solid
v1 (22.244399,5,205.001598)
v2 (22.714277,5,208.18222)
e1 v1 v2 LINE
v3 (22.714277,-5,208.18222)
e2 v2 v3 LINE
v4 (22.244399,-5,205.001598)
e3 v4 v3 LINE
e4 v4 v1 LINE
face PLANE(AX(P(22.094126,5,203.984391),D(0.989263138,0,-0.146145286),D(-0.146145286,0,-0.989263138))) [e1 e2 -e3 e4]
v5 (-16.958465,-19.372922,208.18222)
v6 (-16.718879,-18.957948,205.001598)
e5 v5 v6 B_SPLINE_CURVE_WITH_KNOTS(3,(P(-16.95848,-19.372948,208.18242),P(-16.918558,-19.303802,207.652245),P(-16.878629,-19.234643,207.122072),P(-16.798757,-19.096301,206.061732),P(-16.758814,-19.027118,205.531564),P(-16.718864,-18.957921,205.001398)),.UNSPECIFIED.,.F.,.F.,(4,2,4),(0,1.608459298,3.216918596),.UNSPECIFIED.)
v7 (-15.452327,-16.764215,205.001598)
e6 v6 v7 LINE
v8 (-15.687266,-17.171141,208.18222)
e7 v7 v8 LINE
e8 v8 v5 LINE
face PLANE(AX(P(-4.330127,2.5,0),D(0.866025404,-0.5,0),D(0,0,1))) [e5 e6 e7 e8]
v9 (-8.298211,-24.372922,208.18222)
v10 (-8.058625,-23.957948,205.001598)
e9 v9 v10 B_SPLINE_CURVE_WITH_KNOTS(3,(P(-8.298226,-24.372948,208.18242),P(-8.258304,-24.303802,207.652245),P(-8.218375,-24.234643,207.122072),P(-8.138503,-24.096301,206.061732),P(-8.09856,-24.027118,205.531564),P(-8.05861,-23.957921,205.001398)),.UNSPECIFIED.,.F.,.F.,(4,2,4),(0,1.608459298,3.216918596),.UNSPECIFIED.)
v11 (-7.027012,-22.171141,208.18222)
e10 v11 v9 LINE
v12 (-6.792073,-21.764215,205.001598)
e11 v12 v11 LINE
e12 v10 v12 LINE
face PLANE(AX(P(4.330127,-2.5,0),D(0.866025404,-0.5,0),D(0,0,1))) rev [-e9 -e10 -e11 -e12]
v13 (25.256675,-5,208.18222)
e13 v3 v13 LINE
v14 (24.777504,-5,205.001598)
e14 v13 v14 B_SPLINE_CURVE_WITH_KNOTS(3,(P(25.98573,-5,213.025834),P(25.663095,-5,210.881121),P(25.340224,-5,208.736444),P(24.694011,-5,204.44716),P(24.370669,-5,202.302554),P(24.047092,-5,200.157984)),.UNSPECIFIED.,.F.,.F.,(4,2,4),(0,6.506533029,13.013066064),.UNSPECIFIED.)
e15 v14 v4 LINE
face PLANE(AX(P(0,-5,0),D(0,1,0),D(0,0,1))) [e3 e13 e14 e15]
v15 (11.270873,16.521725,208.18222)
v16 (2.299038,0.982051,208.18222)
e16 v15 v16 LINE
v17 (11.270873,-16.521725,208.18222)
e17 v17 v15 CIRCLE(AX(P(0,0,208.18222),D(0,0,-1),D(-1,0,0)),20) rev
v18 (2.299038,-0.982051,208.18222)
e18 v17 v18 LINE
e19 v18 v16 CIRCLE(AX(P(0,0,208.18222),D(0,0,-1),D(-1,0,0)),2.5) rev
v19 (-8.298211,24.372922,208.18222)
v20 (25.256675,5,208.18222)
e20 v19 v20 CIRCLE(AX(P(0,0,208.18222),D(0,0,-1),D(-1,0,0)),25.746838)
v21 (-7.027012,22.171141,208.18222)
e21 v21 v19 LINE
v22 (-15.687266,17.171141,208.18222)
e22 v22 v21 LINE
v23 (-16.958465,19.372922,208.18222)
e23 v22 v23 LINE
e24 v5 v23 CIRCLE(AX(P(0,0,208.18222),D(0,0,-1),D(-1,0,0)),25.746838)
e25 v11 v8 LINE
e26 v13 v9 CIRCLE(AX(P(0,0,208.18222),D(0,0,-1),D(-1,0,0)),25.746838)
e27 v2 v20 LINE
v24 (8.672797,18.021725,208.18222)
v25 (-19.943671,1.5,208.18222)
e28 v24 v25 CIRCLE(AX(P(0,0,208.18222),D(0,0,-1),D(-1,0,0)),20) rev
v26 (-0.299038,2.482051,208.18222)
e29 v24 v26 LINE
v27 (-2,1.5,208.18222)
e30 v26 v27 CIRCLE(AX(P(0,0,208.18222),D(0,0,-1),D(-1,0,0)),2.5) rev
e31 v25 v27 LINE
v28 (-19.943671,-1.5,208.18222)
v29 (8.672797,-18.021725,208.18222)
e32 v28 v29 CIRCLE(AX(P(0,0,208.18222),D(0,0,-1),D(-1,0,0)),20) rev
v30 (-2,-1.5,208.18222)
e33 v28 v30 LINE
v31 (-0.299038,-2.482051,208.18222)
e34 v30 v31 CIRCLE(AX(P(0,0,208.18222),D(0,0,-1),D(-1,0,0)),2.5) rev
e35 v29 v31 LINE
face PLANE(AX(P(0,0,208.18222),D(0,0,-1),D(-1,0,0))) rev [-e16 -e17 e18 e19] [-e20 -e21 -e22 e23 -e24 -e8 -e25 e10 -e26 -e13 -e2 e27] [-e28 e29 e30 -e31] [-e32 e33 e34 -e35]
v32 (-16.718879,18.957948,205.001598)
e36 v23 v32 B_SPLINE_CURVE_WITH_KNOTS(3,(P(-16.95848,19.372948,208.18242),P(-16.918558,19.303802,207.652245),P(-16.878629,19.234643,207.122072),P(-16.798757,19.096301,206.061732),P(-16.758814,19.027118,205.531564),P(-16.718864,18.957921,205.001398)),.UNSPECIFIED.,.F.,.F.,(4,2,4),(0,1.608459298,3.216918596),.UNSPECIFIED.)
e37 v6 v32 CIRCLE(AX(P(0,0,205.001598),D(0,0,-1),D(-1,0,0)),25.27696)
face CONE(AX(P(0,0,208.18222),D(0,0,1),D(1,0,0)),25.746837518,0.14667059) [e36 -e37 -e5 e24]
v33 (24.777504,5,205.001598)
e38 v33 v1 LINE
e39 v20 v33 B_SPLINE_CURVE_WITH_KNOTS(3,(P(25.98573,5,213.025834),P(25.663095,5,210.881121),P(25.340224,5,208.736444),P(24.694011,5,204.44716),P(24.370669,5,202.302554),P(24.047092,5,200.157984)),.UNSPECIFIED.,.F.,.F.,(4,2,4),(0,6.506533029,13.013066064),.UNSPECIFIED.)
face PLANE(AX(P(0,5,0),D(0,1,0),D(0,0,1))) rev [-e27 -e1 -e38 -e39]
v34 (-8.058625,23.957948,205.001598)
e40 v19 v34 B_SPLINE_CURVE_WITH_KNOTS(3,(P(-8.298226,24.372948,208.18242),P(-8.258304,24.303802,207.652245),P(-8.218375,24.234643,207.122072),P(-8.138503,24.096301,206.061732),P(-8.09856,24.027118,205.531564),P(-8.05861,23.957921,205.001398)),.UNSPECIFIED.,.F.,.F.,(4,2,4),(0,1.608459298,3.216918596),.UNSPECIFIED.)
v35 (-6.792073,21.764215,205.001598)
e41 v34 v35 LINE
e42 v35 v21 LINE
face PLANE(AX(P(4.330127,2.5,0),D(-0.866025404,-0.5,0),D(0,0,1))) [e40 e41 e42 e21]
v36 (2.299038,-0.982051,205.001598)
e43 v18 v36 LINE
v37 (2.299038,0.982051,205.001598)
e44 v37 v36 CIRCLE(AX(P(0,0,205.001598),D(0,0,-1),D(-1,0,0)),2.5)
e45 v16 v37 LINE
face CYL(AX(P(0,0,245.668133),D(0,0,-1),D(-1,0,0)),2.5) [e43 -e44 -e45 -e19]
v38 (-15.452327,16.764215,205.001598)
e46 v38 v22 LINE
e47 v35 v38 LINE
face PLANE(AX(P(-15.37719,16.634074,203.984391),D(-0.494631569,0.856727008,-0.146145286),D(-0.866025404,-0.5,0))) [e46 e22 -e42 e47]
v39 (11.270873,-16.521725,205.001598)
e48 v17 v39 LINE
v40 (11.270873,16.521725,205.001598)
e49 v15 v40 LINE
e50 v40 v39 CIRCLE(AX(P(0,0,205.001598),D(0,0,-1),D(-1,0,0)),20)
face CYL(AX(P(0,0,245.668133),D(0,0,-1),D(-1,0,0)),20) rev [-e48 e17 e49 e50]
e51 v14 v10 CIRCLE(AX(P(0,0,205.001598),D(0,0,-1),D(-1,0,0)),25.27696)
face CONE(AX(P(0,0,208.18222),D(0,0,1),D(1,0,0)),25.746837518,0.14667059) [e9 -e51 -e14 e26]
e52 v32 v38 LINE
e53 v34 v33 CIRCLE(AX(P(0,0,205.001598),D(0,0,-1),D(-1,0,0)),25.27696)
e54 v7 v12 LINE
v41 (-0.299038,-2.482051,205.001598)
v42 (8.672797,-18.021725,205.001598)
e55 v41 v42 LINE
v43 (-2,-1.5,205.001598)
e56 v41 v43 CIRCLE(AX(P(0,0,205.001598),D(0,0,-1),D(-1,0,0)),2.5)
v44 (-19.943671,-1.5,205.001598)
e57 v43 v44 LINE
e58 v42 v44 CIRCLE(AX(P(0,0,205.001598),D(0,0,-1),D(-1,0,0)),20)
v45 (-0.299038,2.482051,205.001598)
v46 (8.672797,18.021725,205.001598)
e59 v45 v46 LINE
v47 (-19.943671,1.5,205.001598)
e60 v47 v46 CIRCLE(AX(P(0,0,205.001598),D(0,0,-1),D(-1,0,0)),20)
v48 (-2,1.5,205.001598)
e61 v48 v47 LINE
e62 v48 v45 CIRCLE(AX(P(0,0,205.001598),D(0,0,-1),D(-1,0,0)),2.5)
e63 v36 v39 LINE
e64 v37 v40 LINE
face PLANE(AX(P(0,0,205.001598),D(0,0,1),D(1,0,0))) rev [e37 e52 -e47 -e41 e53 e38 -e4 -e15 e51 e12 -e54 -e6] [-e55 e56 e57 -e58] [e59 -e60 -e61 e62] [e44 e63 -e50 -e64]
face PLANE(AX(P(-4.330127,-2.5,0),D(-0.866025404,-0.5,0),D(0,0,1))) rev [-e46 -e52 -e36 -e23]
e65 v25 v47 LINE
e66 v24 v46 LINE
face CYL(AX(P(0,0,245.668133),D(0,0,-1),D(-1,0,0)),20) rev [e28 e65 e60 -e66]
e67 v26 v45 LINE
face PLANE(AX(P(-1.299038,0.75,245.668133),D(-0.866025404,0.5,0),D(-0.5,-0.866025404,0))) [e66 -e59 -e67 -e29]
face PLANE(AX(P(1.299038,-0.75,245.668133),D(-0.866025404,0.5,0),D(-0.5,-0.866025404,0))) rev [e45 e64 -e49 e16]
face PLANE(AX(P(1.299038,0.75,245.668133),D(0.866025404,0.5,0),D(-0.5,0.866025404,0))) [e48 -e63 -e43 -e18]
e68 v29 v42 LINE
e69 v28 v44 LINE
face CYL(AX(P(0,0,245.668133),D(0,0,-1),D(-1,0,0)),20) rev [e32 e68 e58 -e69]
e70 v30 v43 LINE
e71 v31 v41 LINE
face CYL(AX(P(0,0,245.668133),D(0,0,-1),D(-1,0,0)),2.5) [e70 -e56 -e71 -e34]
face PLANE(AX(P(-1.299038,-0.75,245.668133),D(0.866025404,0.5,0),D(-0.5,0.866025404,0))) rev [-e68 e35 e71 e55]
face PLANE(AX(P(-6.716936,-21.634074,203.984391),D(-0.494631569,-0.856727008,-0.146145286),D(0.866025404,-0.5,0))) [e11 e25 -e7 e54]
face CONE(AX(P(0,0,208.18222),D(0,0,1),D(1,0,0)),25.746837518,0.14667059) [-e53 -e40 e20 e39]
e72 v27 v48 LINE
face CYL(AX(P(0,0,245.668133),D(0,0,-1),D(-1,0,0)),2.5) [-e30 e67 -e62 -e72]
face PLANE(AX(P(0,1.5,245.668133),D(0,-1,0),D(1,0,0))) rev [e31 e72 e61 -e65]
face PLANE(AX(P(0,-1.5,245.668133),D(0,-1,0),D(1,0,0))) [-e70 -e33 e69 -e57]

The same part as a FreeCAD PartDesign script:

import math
import FreeCAD as App
import Part
import Sketcher
Q = App.Units.Quantity


def add_polygon(sketch, points):
    """Adds a closed chain of lines whose ends are joined by coincident constraints."""
    first, n = sketch.GeometryCount, len(points)
    for a, b in zip(points, points[1:] + points[:1]):
        sketch.addGeometry(Part.LineSegment(App.Vector(*a, 0), App.Vector(*b, 0)), False)
    for i in range(n):
        sketch.addConstraint(Sketcher.Constraint("Coincident", first + i, 2, first + (i + 1) % n, 1))

doc = App.newDocument("Part")
body = doc.addObject("PartDesign::Body", "Body")

sketch1 = doc.addObject("Sketcher::SketchObject", "Sketch")
body.addObject(sketch1)
sketch1.AttachmentSupport = (doc.XZ_Plane, [""])
sketch1.MapMode = "FlatFace"
add_polygon(sketch1, [(0, 208.2), (25.7, 208.2), (25.3, 205), (0, 205)])
sketch1.addConstraint([
    Sketcher.Constraint("Horizontal", 0),
    Sketcher.Constraint("Horizontal", 2),
    Sketcher.Constraint("Vertical", 3),
    Sketcher.Constraint("PointOnObject", 2, 2, -2),
    Sketcher.Constraint("DistanceX", 2, 2, 2, 1, 25.27696),
    Sketcher.Constraint("DistanceX", 0, 1, 0, 2, 25.746838),
    Sketcher.Constraint("DistanceY", 3, 1, 3, 2, 3.180622),
    Sketcher.Constraint("DistanceY", -1, 1, 0, 2, 208.18222),
])
revolution = doc.addObject("PartDesign::Revolution", "Revolution")
body.addObject(revolution)
revolution.Profile = sketch1
revolution.ReferenceAxis = (sketch1, ["V_Axis"])
revolution.Angle = 360

sketch2 = doc.addObject("Sketcher::SketchObject", "Sketch001")
body.addObject(sketch2)
sketch2.AttachmentSupport = (doc.XZ_Plane, [""])
sketch2.MapMode = "FlatFace"
add_polygon(sketch2, [(22.1, 204), (22.9, 209.1), (26.7, 209.1), (25.7, 204)])
sketch2.addConstraint([
    Sketcher.Constraint("Horizontal", 1),
    Sketcher.Constraint("Horizontal", 3),
    Sketcher.Constraint("DistanceX", 1, 1, 1, 2, 3.88705),
    Sketcher.Constraint("DistanceX", 3, 2, 3, 1, 3.652712),
    Sketcher.Constraint("DistanceY", 2, 2, 1, 2, 5.1204),
    Sketcher.Constraint("DistanceX", -1, 1, 0, 2, 22.85057),
    Sketcher.Constraint("DistanceY", -1, 1, 0, 2, 209.104791),
    Sketcher.Constraint("Distance", 0, 5.175974),
])
pocket1 = doc.addObject("PartDesign::Pocket", "Pocket")
body.addObject(pocket1)
pocket1.Profile = sketch2
pocket1.Length = 10
pocket1.Midplane = True
doc.recompute()

polarpattern = doc.addObject("PartDesign::PolarPattern", "PolarPattern")
body.addObject(polarpattern)
polarpattern.Originals = [pocket1]
polarpattern.Axis = (doc.Z_Axis, [""])
polarpattern.Angle = 360
polarpattern.Occurrences = 3
body.Tip = polarpattern

sketch3 = doc.addObject("Sketcher::SketchObject", "Sketch002")
body.addObject(sketch3)
sketch3.AttachmentSupport = (doc.XY_Plane, [""])
sketch3.MapMode = "FlatFace"
sketch3.AttachmentOffset = App.Placement(App.Vector(0, 0, 205.001598), App.Rotation())
sketch3.addGeometry([
    Part.LineSegment(App.Vector(11.3, -16.5, 0), App.Vector(2.3, -1, 0)),
    Part.ArcOfCircle(Part.Circle(App.Vector(0, 0, 0), App.Vector(0, 0, 1), 2.5), math.radians(-23), math.radians(23)),
    Part.LineSegment(App.Vector(2.3, 1, 0), App.Vector(11.3, 16.5, 0)),
    Part.ArcOfCircle(Part.Circle(App.Vector(0, 0, 0), App.Vector(0, 0, 1), 20), math.radians(-56), math.radians(56)),
    Part.ArcOfCircle(Part.Circle(App.Vector(0, 0, 0), App.Vector(0, 0, 1), 20), math.radians(64), math.radians(176)),
    Part.LineSegment(App.Vector(8.7, 18, 0), App.Vector(-0.3, 2.5, 0)),
    Part.ArcOfCircle(Part.Circle(App.Vector(0, 0, 0), App.Vector(0, 0, 1), 2.5), math.radians(97), math.radians(143)),
    Part.LineSegment(App.Vector(-2, 1.5, 0), App.Vector(-19.9, 1.5, 0)),
    Part.LineSegment(App.Vector(-0.3, -2.5, 0), App.Vector(8.7, -18, 0)),
    Part.ArcOfCircle(Part.Circle(App.Vector(0, 0, 0), App.Vector(0, 0, 1), 20), math.radians(-176), math.radians(-64)),
    Part.LineSegment(App.Vector(-19.9, -1.5, 0), App.Vector(-2, -1.5, 0)),
    Part.ArcOfCircle(Part.Circle(App.Vector(0, 0, 0), App.Vector(0, 0, 1), 2.5), math.radians(-143), math.radians(-97)),
], False)
sketch3.addConstraint([
    Sketcher.Constraint("Coincident", 0, 2, 1, 1),
    Sketcher.Constraint("Coincident", 1, 2, 2, 1),
    Sketcher.Constraint("Coincident", 2, 2, 3, 2),
    Sketcher.Constraint("Coincident", 3, 1, 0, 1),
    Sketcher.Constraint("Coincident", 4, 1, 5, 1),
    Sketcher.Constraint("Coincident", 5, 2, 6, 1),
    Sketcher.Constraint("Coincident", 6, 2, 7, 1),
    Sketcher.Constraint("Coincident", 7, 2, 4, 2),
    Sketcher.Constraint("Coincident", 8, 2, 9, 2),
    Sketcher.Constraint("Coincident", 9, 1, 10, 1),
    Sketcher.Constraint("Coincident", 10, 2, 11, 1),
    Sketcher.Constraint("Coincident", 11, 2, 8, 1),
    Sketcher.Constraint("Horizontal", 7),
    Sketcher.Constraint("Horizontal", 10),
    Sketcher.Constraint("Coincident", 1, 3, -1, 1),
    Sketcher.Constraint("Coincident", 3, 3, -1, 1),
    Sketcher.Constraint("Coincident", 4, 3, -1, 1),
    Sketcher.Constraint("Coincident", 6, 3, -1, 1),
    Sketcher.Constraint("Coincident", 9, 3, -1, 1),
    Sketcher.Constraint("Coincident", 11, 3, -1, 1),
    Sketcher.Constraint("Equal", 3, 4),
    Sketcher.Constraint("Equal", 1, 6),
    Sketcher.Constraint("Equal", 4, 9),
    Sketcher.Constraint("Equal", 6, 11),
    Sketcher.Constraint("Parallel", 2, 5),
    Sketcher.Constraint("Parallel", 0, 8),
    Sketcher.Constraint("Vertical", 0, 2, 1, 2),
    Sketcher.Constraint("Vertical", 2, 2, 3, 1),
    Sketcher.Constraint("Vertical", 4, 1, 8, 2),
    Sketcher.Constraint("Vertical", 7, 2, 9, 1),
    Sketcher.Constraint("Equal", 2, 5),
    Sketcher.Constraint("Radius", 3, 20.0),
    Sketcher.Constraint("Radius", 1, 2.5),
    Sketcher.Constraint("Angle", 0, Q("120 deg")),
    Sketcher.Constraint("DistanceX", 6, 2, -1, 1, 2.0),
    Sketcher.Constraint("DistanceY", 2, 2, 4, 1, 1.5),
])
pocket2 = doc.addObject("PartDesign::Pocket", "Pocket001")
body.addObject(pocket2)
pocket2.Profile = sketch3
pocket2.Length = 3.180622
pocket2.Reversed = True

doc.recompute()
